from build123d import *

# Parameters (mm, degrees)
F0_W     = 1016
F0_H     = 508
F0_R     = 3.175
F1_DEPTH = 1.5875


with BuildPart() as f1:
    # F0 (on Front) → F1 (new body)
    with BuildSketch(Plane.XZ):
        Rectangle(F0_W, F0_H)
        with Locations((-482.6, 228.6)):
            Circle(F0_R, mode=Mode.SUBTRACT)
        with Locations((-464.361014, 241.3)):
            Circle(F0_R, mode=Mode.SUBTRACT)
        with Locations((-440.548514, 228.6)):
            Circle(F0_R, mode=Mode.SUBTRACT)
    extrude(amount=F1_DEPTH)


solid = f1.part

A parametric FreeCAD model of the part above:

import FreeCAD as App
import Part
import Sketcher
Q = App.Units.Quantity

doc = App.newDocument("Part")
body = doc.addObject("PartDesign::Body", "Body")

# Sketch on XZ plane
sketch1 = body.newObject("Sketcher::SketchObject", "Sketch")
sketch1.AttachmentSupport = (doc.getObject("XZ_Plane"), [""])
sketch1.MapMode = "FlatFace"
sketch1.addGeometry([
    Part.LineSegment(App.Vector(-508, 254, 0), App.Vector(-508, -254, 0)),  # 0
    Part.LineSegment(App.Vector(-508, -254, 0), App.Vector(508, -254, 0)),  # 1
    Part.LineSegment(App.Vector(508, -254, 0), App.Vector(508, 254, 0)),  # 2
    Part.LineSegment(App.Vector(508, 254, 0), App.Vector(-508, 254, 0)),  # 3
    Part.Circle(App.Vector(-482.6, 228.6, 0), App.Vector(0, 0, 1), 3.175),  # 4
    Part.Circle(App.Vector(-440.548514, 228.6, 0), App.Vector(0, 0, 1), 3.175),  # 5
    Part.Circle(App.Vector(-464.361014, 241.3, 0), App.Vector(0, 0, 1), 3.175),  # 6
], False)
sketch1.addConstraint([
    Sketcher.Constraint("Coincident", 0, 2, 1, 1),
    Sketcher.Constraint("Coincident", 1, 2, 2, 1),
    Sketcher.Constraint("Coincident", 2, 2, 3, 1),
    Sketcher.Constraint("Coincident", 3, 2, 0, 1),
    Sketcher.Constraint("Vertical", 0),
    Sketcher.Constraint("Horizontal", 1),
    Sketcher.Constraint("Vertical", 2),
    Sketcher.Constraint("Horizontal", 3),
    Sketcher.Constraint("Equal", 4, 5),
    Sketcher.Constraint("Equal", 5, 6),
    Sketcher.Constraint("Symmetric", 0, 2, 2, 2, -1, 1),
    Sketcher.Constraint("Horizontal", 4, 3, 5, 3),
    Sketcher.Constraint("Diameter", 4, Q("0.25 in")),
    Sketcher.Constraint("DistanceX", 1, 1, 1, 2, Q("40 in")),
    Sketcher.Constraint("DistanceY", 0, 2, 0, 1, Q("20 in")),
    Sketcher.Constraint("DistanceX", 4, 3, -1, 1, Q("19 in")),
    Sketcher.Constraint("DistanceY", -1, 1, 4, 3, Q("9 in")),
    Sketcher.Constraint("DistanceY", -1, 1, 6, 3, Q("9.5 in")),
    Sketcher.Constraint("DistanceX", 6, 3, 5, 3, Q("0.9375 in")),
    Sketcher.Constraint("DistanceX", 5, 3, -1, 1, Q("440.548514 mm")),
])
pad1 = body.newObject("PartDesign::Pad", "Pad")
pad1.Profile = sketch1
pad1.Length = Q("0.0625 in")

doc.recompute()
